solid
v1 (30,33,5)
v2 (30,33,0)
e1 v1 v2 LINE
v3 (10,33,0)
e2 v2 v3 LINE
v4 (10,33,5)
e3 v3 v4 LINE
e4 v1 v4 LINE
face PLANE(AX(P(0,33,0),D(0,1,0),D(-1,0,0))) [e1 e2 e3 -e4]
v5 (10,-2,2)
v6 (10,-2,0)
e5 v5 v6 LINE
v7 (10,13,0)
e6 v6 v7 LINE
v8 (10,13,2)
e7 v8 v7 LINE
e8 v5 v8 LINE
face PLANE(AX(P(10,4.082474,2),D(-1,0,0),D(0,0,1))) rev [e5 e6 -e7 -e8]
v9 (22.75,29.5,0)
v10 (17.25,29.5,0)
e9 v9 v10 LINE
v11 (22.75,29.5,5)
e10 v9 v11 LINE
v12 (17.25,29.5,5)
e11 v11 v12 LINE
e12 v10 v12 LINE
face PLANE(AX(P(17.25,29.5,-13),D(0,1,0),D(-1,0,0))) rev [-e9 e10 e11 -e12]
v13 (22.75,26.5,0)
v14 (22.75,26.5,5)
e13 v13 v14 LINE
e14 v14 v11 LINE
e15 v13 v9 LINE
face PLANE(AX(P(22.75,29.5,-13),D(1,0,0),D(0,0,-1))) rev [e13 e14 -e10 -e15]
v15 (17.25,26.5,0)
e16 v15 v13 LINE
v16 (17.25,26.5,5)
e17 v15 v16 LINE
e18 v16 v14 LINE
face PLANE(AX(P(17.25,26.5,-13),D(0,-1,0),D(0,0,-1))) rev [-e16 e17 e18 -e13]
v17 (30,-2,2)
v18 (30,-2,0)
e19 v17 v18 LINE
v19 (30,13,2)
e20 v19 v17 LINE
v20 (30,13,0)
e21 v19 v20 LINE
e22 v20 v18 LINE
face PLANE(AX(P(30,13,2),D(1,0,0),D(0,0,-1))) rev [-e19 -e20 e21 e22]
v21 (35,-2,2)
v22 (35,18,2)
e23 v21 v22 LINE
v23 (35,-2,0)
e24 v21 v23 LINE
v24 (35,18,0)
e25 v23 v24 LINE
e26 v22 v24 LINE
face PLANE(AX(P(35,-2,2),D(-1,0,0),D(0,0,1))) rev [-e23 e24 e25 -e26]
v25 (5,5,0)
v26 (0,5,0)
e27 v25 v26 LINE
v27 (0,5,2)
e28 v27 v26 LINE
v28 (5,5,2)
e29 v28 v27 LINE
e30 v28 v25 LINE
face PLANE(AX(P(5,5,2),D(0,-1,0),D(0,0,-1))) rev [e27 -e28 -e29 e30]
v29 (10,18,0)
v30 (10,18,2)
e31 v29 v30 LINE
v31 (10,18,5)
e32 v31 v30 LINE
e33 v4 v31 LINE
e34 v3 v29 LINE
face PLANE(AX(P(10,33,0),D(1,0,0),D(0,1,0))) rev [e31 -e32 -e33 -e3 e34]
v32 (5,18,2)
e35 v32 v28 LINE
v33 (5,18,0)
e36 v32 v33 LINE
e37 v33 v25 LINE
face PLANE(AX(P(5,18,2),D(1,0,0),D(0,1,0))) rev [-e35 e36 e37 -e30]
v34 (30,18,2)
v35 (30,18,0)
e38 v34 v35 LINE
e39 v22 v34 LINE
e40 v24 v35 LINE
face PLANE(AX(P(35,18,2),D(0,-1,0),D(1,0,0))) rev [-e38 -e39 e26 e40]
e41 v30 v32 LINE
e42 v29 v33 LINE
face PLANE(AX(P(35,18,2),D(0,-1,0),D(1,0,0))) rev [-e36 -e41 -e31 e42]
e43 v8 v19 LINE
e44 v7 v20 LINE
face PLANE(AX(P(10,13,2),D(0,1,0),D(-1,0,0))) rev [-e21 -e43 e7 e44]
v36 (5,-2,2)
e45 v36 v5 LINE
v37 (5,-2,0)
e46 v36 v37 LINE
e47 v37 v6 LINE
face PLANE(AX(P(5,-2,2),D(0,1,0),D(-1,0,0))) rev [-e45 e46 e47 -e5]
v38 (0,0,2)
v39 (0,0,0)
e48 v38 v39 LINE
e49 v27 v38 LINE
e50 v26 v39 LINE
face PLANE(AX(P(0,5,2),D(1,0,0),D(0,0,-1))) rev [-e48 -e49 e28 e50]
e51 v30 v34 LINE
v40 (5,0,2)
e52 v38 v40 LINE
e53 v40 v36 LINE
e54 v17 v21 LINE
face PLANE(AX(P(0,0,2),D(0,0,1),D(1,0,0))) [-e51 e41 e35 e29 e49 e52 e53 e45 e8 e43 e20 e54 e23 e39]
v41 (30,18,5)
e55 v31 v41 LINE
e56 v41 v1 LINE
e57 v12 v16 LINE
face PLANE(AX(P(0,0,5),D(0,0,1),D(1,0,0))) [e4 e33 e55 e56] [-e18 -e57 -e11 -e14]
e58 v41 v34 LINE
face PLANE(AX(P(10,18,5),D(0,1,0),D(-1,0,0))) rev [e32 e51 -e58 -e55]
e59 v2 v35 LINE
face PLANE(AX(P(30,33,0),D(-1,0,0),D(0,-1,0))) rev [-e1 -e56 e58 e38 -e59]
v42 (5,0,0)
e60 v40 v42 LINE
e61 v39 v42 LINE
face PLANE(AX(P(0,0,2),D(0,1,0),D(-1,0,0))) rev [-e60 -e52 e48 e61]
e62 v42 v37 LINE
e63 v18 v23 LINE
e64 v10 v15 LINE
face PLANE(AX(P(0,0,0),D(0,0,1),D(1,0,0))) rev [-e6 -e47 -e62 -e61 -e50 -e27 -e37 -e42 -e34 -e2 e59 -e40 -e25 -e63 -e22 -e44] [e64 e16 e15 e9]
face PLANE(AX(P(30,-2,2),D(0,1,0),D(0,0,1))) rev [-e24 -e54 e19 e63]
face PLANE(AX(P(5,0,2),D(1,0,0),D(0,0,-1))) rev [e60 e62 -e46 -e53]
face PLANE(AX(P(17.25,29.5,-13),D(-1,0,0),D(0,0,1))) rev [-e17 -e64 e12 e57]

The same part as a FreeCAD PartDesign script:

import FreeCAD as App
import Part
import Sketcher

V = App.Vector
Q = App.Units.Quantity

doc = App.newDocument("Part")
body = doc.addObject("PartDesign::Body", "Body")

# Sketch on XY plane
sketch1 = body.newObject("Sketcher::SketchObject", "Sketch")
sketch1.AttachmentSupport = (doc.getObject("XY_Plane"), [""])
sketch1.MapMode = "FlatFace"
sketch1.addGeometry([
    Part.LineSegment(V(0, 0, 0), V(5, 0, 0)),  # 0
    Part.LineSegment(V(5, 0, 0), V(5, -2, 0)),  # 1
    Part.LineSegment(V(5, -2, 0), V(10, -2, 0)),  # 2
    Part.LineSegment(V(10, -2, 0), V(10, 13, 0)),  # 3
    Part.LineSegment(V(10, 13, 0), V(30, 13, 0)),  # 4
    Part.LineSegment(V(30, 13, 0), V(30, -2, 0)),  # 5
    Part.LineSegment(V(30, -2, 0), V(35, -2, 0)),  # 6
    Part.LineSegment(V(35, -2, 0), V(35, 18, 0)),  # 7
    Part.LineSegment(V(35, 18, 0), V(5, 18, 0)),  # 8
    Part.LineSegment(V(5, 18, 0), V(5, 5, 0)),  # 9
    Part.LineSegment(V(5, 5, 0), V(0, 5, 0)),  # 10
    Part.LineSegment(V(0, 5, 0), V(0, 0, 0)),  # 11
], False)
sketch1.addConstraint([
    Sketcher.Constraint("Coincident", 0, 2, 1, 1),
    Sketcher.Constraint("Coincident", 1, 2, 2, 1),
    Sketcher.Constraint("Coincident", 2, 2, 3, 1),
    Sketcher.Constraint("Coincident", 3, 2, 4, 1),
    Sketcher.Constraint("Coincident", 4, 2, 5, 1),
    Sketcher.Constraint("Coincident", 5, 2, 6, 1),
    Sketcher.Constraint("Coincident", 6, 2, 7, 1),
    Sketcher.Constraint("Coincident", 7, 2, 8, 1),
    Sketcher.Constraint("Coincident", 8, 2, 9, 1),
    Sketcher.Constraint("Coincident", 9, 2, 10, 1),
    Sketcher.Constraint("Coincident", 10, 2, 11, 1),
    Sketcher.Constraint("Coincident", 11, 2, 0, 1),
    Sketcher.Constraint("Horizontal", 0),
    Sketcher.Constraint("Vertical", 1),
    Sketcher.Constraint("Horizontal", 2),
    Sketcher.Constraint("Vertical", 3),
    Sketcher.Constraint("Horizontal", 4),
    Sketcher.Constraint("Vertical", 5),
    Sketcher.Constraint("Horizontal", 6),
    Sketcher.Constraint("Vertical", 7),
    Sketcher.Constraint("Horizontal", 8),
    Sketcher.Constraint("Vertical", 9),
    Sketcher.Constraint("Horizontal", 10),
    Sketcher.Constraint("Vertical", 11),
    Sketcher.Constraint("Coincident", 11, 2, -1, 1),
    Sketcher.Constraint("Horizontal", 2, 2, 5, 2),
    Sketcher.Constraint("Vertical", 1, 2, 8, 2),
    Sketcher.Constraint("Equal", 0, 2),
    Sketcher.Constraint("Equal", 2, 6),
    Sketcher.Constraint("Equal", 4, 7),
    Sketcher.Constraint("Equal", 10, 11),
    Sketcher.Constraint("DistanceX", 0, 1, 0, 2, Q("5 mm")),
    Sketcher.Constraint("DistanceX", 4, 1, 4, 2, Q("20 mm")),
    Sketcher.Constraint("DistanceY", 1, 2, 1, 1, Q("2 mm")),
    Sketcher.Constraint("DistanceY", 3, 1, 3, 2, Q("15 mm")),
])
pad1 = body.newObject("PartDesign::Pad", "Pad")
pad1.Profile = sketch1
pad1.Length = 2

# Sketch on XZ plane
sketch2 = body.newObject("Sketcher::SketchObject", "Sketch001")
sketch2.AttachmentSupport = (doc.getObject("XZ_Plane"), [""])
sketch2.MapMode = "FlatFace"
sketch2.AttachmentOffset = App.Placement(V(0, 0, -18), App.Rotation())
sketch2.addGeometry([
    Part.LineSegment(V(10, 0, 0), V(10, 2, 0)),
    Part.LineSegment(V(10, 2, 0), V(30, 2, 0)),
    Part.LineSegment(V(30, 2, 0), V(30, 0, 0)),
    Part.LineSegment(V(30, 0, 0), V(10, 0, 0)),
], False)
sketch2.addConstraint([
    Sketcher.Constraint("Coincident", 0, 2, 1, 1),
    Sketcher.Constraint("Coincident", 1, 2, 2, 1),
    Sketcher.Constraint("Coincident", 2, 2, 3, 1),
    Sketcher.Constraint("Coincident", 3, 2, 0, 1),
    Sketcher.Constraint("Vertical", 0),
    Sketcher.Constraint("Horizontal", 1),
    Sketcher.Constraint("Vertical", 2),
    Sketcher.Constraint("Horizontal", 3),
    Sketcher.Constraint("PointOnObject", 2, 2, -1),
    Sketcher.Constraint("DistanceX", 1, 1, 1, 2, Q("20 mm")),
    Sketcher.Constraint("DistanceY", 0, 1, 0, 2, Q("2 mm")),
    Sketcher.Constraint("DistanceX", -1, 1, 0, 2, Q("10 mm")),
])
pad2 = body.newObject("PartDesign::Pad", "Pad001")
pad2.Profile = sketch2
pad2.Length = 15
pad2.Reversed = True

# Sketch on XY plane
sketch3 = body.newObject("Sketcher::SketchObject", "Sketch002")
sketch3.AttachmentSupport = (doc.getObject("XY_Plane"), [""])
sketch3.MapMode = "FlatFace"
sketch3.AttachmentOffset = App.Placement(V(0, 0, 2), App.Rotation())
sketch3.addGeometry([
    Part.LineSegment(V(17.25, 29.5, 0), V(17.25, 26.5, 0)),
    Part.LineSegment(V(17.25, 26.5, 0), V(22.75, 26.5, 0)),
    Part.LineSegment(V(22.75, 26.5, 0), V(22.75, 29.5, 0)),
    Part.LineSegment(V(22.75, 29.5, 0), V(17.25, 29.5, 0)),
], False)
sketch3.addConstraint([
    Sketcher.Constraint("Coincident", 0, 2, 1, 1),
    Sketcher.Constraint("Coincident", 1, 2, 2, 1),
    Sketcher.Constraint("Coincident", 2, 2, 3, 1),
    Sketcher.Constraint("Coincident", 3, 2, 0, 1),
    Sketcher.Constraint("Vertical", 0),
    Sketcher.Constraint("Horizontal", 1),
    Sketcher.Constraint("Vertical", 2),
    Sketcher.Constraint("Horizontal", 3),
    Sketcher.Constraint("DistanceY", 0, 2, 0, 1, Q("3 mm")),
    Sketcher.Constraint("DistanceX", 1, 1, 1, 2, Q("5.5 mm")),
    Sketcher.Constraint("DistanceY", -1, 1, 0, 2, Q("26.5 mm")),
    Sketcher.Constraint("DistanceX", -1, 1, 0, 2, Q("17.25 mm")),
])
pocket1 = body.newObject("PartDesign::Pocket", "Pocket")
pocket1.Profile = sketch3
pocket1.Length = 15

# Sketch on XY plane
sketch4 = body.newObject("Sketcher::SketchObject", "Sketch003")
sketch4.AttachmentSupport = (doc.getObject("XY_Plane"), [""])
sketch4.MapMode = "FlatFace"
sketch4.AttachmentOffset = App.Placement(V(0, 0, 2), App.Rotation())
sketch4.addGeometry([
    Part.LineSegment(V(10, 33, 0), V(10, 18, 0)),  # 0
    Part.LineSegment(V(10, 18, 0), V(30, 18, 0)),  # 1
    Part.LineSegment(V(30, 18, 0), V(30, 33, 0)),  # 2
    Part.LineSegment(V(30, 33, 0), V(10, 33, 0)),  # 3
    Part.LineSegment(V(22.75, 26.5, 0), V(17.25, 26.5, 0)),  # 4
    Part.LineSegment(V(17.25, 26.5, 0), V(17.25, 29.5, 0)),  # 5
    Part.LineSegment(V(17.25, 29.5, 0), V(22.75, 29.5, 0)),  # 6
    Part.LineSegment(V(22.75, 29.5, 0), V(22.75, 26.5, 0)),  # 7
], False)
sketch4.addConstraint([
    Sketcher.Constraint("Coincident", 0, 2, 1, 1),
    Sketcher.Constraint("Coincident", 1, 2, 2, 1),
    Sketcher.Constraint("Coincident", 2, 2, 3, 1),
    Sketcher.Constraint("Coincident", 3, 2, 0, 1),
    Sketcher.Constraint("Coincident", 4, 2, 5, 1),
    Sketcher.Constraint("Coincident", 5, 2, 6, 1),
    Sketcher.Constraint("Coincident", 6, 2, 7, 1),
    Sketcher.Constraint("Coincident", 7, 2, 4, 1),
    Sketcher.Constraint("Vertical", 0),
    Sketcher.Constraint("Horizontal", 1),
    Sketcher.Constraint("Vertical", 2),
    Sketcher.Constraint("Horizontal", 3),
    Sketcher.Constraint("Horizontal", 4),
    Sketcher.Constraint("Vertical", 5),
    Sketcher.Constraint("Horizontal", 6),
    Sketcher.Constraint("Vertical", 7),
    Sketcher.Constraint("DistanceX", 1, 1, 1, 2, Q("20 mm")),
    Sketcher.Constraint("DistanceY", 0, 2, 0, 1, Q("15 mm")),
    Sketcher.Constraint("DistanceY", 5, 1, 5, 2, Q("3 mm")),
    Sketcher.Constraint("DistanceX", 4, 2, 4, 1, Q("5.5 mm")),
    Sketcher.Constraint("DistanceX", -1, 1, 0, 2, Q("10 mm")),
    Sketcher.Constraint("DistanceY", -1, 1, 0, 2, Q("18 mm")),
    Sketcher.Constraint("DistanceY", -1, 1, 4, 2, Q("26.5 mm")),
    Sketcher.Constraint("DistanceX", -1, 1, 4, 2, Q("17.25 mm")),
])
pad3 = body.newObject("PartDesign::Pad", "Pad002")
pad3.Profile = sketch4
pad3.Length = 3

doc.recompute()
